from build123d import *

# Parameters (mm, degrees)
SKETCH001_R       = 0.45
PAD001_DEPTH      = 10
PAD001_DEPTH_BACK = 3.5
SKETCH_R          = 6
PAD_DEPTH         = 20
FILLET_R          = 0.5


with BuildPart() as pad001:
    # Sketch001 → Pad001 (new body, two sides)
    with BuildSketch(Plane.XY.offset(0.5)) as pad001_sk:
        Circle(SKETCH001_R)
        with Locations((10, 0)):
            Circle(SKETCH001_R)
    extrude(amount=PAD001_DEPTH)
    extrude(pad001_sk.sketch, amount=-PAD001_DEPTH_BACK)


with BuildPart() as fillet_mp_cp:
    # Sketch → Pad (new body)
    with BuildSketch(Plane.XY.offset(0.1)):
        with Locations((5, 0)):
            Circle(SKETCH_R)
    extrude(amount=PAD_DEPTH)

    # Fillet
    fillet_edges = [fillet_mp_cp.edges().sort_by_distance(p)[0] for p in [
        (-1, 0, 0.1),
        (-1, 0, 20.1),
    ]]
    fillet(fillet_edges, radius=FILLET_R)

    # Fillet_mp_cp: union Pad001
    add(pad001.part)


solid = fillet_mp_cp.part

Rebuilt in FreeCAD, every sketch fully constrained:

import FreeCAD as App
import Part
import Sketcher
from FreeCAD import Vector
Q = App.Units.Quantity


def edges_at(feature, points):
    """Names of the edges that pass closest to the given points."""
    edges = feature.Shape.Edges
    near = lambda p: min(range(len(edges)), key=lambda i: edges[i].distToShape(Part.Vertex(*p))[0])
    return sorted({f"Edge{near(p) + 1}" for p in points})

doc = App.newDocument("Part")
params = doc.addObject("Spreadsheet::Sheet", "Params")
for row, (alias, value) in enumerate([
    ("sketch1_diameter", "0.9 mm"),
    ("pad1_length", "10 mm"),
    ("pad1_length2", "3.5 mm"),
    ("sketch2_diameter", "12 mm"),
    ("pad2_length", "20 mm"),
    ("fillet_radius", "0.5 mm"),
], start=1):
    params.set(f"A{row}", alias)
    params.set(f"B{row}", "=" + value)
    params.setAlias(f"B{row}", alias)

body = doc.addObject("PartDesign::Body", "Body")
body.AllowCompound = True

sketch1 = body.newObject("Sketcher::SketchObject", "Sketch")
sketch1.AttachmentSupport = (doc.getObject("XY_Plane"), [""])
sketch1.MapMode = "FlatFace"
sketch1.AttachmentOffset = App.Placement(Vector(0, 0, 0.5), App.Rotation())
sketch1.addGeometry([
    Part.Circle(Vector(0, 0, 0), Vector(0, 0, 1), 0.45),
    Part.Circle(Vector(10, 0, 0), Vector(0, 0, 1), 0.45),
], False)
sketch1.addConstraint([
    Sketcher.Constraint("Coincident", 0, 3, -1, 1),
    Sketcher.Constraint("Equal", 0, 1),
    Sketcher.Constraint("PointOnObject", 1, 3, -1),
    Sketcher.Constraint("Diameter", 0, Q("0.9 mm")),
    Sketcher.Constraint("DistanceX", -1, 1, 1, 3, Q("10 mm")),
])
sketch1.setExpression("Constraints[3]", "Params.sketch1_diameter")
pad1 = body.newObject("PartDesign::Pad", "Pad")
pad1.Profile = sketch1
pad1.Type = "TwoLengths"
pad1.setExpression("Length", "Params.pad1_length")
pad1.setExpression("Length2", "Params.pad1_length2")
body2 = doc.addObject("PartDesign::Body", "Body001")

sketch2 = body2.newObject("Sketcher::SketchObject", "Sketch001")
sketch2.AttachmentSupport = (doc.getObject("XY_Plane001"), [""])
sketch2.MapMode = "FlatFace"
sketch2.AttachmentOffset = App.Placement(Vector(0, 0, 0.1), App.Rotation())
sketch2.addGeometry(Part.Circle(Vector(5, 0, 0), Vector(0, 0, 1), 6), False)
sketch2.addConstraint([
    Sketcher.Constraint("PointOnObject", 0, 3, -1),
    Sketcher.Constraint("Diameter", 0, Q("12 mm")),
    Sketcher.Constraint("DistanceX", -1, 1, 0, 3, Q("5 mm")),
])
sketch2.setExpression("Constraints[1]", "Params.sketch2_diameter")
pad2 = body2.newObject("PartDesign::Pad", "Pad001")
pad2.Profile = sketch2
pad2.setExpression("Length", "Params.pad2_length")
doc.recompute()

fillet = body2.newObject("PartDesign::Fillet", "Fillet")
fillet.Base = (pad2, edges_at(pad2, [(-1, 0, 0.1), (-1, 0, 20.1)]))
fillet.setExpression("Radius", "Params.fillet_radius")
doc.recompute()

boolean = body2.newObject("PartDesign::Boolean", "Boolean")
boolean.Type = "Fuse"
boolean.addObjects([body])

doc.recompute()
